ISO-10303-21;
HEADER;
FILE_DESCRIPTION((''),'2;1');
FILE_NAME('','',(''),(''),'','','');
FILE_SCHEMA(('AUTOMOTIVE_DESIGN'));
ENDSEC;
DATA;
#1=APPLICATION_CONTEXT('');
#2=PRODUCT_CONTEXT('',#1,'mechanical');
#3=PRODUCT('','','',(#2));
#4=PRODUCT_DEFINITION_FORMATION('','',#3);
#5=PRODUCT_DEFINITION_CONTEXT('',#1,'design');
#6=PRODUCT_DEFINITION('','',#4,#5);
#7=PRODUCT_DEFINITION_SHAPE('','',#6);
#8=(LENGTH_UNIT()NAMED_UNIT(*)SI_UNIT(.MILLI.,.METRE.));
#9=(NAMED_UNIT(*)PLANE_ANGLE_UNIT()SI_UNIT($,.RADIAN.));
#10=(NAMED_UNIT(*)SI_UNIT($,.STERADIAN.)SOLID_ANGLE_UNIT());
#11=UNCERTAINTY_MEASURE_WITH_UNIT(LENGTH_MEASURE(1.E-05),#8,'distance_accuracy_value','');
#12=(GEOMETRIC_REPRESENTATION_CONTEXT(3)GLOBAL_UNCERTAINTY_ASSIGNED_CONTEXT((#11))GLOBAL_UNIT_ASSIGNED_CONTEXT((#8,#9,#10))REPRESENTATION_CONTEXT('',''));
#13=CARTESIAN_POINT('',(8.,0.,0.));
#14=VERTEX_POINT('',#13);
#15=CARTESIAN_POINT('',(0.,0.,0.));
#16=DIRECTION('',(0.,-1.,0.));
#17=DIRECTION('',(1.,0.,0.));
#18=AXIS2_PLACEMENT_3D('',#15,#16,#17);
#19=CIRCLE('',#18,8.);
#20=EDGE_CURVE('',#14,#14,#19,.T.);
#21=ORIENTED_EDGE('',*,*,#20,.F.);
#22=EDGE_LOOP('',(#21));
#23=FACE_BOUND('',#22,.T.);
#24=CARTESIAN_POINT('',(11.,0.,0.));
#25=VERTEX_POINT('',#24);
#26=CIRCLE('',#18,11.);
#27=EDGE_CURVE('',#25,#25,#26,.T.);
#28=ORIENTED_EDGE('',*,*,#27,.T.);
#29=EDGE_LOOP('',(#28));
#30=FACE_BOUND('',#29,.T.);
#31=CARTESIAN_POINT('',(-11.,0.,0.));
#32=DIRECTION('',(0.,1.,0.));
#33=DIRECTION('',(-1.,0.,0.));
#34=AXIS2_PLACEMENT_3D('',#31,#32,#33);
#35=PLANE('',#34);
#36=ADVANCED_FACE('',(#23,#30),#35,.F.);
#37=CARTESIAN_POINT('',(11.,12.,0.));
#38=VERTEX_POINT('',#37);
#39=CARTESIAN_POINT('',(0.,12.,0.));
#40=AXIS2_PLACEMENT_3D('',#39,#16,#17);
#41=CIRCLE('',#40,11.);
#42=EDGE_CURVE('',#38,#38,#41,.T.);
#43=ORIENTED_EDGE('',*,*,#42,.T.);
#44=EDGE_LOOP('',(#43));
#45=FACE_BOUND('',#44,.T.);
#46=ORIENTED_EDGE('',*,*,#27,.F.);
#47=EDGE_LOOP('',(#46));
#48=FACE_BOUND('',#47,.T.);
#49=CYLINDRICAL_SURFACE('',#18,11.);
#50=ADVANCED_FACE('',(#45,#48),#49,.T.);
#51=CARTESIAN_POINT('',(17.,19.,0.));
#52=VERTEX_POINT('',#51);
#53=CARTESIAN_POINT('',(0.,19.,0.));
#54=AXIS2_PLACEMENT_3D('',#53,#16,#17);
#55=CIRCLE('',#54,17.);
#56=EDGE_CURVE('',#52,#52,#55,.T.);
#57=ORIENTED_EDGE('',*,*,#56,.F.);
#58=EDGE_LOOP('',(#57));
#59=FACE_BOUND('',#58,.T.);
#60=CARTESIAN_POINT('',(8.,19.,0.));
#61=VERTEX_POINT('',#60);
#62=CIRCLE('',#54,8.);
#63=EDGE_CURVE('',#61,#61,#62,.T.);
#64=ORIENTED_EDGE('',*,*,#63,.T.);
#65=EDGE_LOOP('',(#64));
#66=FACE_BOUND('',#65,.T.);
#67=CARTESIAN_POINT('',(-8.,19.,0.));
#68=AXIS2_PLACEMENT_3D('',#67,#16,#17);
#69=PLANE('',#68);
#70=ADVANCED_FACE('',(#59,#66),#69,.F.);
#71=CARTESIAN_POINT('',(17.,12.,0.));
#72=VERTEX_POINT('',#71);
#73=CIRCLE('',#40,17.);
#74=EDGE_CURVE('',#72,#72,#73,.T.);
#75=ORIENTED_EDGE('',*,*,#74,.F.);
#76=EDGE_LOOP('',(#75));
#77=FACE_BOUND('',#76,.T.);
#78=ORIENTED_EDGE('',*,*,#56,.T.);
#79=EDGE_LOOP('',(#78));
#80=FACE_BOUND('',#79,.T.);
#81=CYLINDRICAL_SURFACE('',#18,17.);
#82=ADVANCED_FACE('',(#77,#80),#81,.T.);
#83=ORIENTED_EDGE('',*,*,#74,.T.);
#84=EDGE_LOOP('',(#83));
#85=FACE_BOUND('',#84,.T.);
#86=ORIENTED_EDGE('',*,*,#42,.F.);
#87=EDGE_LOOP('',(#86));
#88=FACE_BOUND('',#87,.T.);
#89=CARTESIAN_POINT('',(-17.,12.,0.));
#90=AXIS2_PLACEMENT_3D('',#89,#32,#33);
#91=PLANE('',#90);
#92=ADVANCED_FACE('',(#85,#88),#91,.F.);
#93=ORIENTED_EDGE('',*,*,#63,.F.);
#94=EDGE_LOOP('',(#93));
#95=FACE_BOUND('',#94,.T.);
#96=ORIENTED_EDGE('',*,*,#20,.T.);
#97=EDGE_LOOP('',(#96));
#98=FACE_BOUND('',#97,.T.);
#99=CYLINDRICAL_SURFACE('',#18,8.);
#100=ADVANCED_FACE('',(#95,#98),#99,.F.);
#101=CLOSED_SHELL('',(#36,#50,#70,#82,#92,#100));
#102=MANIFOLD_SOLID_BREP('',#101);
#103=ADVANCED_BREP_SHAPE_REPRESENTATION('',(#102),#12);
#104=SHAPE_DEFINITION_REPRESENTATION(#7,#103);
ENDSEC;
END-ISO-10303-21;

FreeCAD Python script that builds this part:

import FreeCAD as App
import Part
import Sketcher
Q = App.Units.Quantity

doc = App.newDocument("Part")
params = doc.addObject("Spreadsheet::Sheet", "Params")
for row, (alias, value) in enumerate([
    ("sketch1_width", "9 mm"),
    ("sketch1_width2", "6 mm"),
    ("sketch1_height", "7 mm"),
    ("sketch1_height2", "12 mm"),
    ("revolution_angle", "360 deg"),
], start=1):
    params.set(f"A{row}", alias)
    params.set(f"B{row}", "=" + value)
    params.setAlias(f"B{row}", alias)

body = doc.addObject("PartDesign::Body", "Body")

sketch1 = body.newObject("Sketcher::SketchObject", "Sketch")
sketch1.AttachmentSupport = (doc.getObject("XY_Plane"), [""])
sketch1.MapMode = "FlatFace"
sketch1.addGeometry(Part.LineSegment(App.Vector(-8, 19, 0), App.Vector(-17, 19, 0)), False)
sketch1.addGeometry(Part.LineSegment(App.Vector(-17, 19, 0), App.Vector(-17, 12, 0)), False)
sketch1.addGeometry(Part.LineSegment(App.Vector(-17, 12, 0), App.Vector(-11, 12, 0)), False)
sketch1.addGeometry(Part.LineSegment(App.Vector(-11, 12, 0), App.Vector(-11, 0, 0)), False)
sketch1.addGeometry(Part.LineSegment(App.Vector(-11, 0, 0), App.Vector(-8, 0, 0)), False)
sketch1.addGeometry(Part.LineSegment(App.Vector(-8, 0, 0), App.Vector(-8, 19, 0)), False)
sketch1.addConstraint(Sketcher.Constraint("Coincident", 0, 2, 1, 1))
sketch1.addConstraint(Sketcher.Constraint("Coincident", 1, 2, 2, 1))
sketch1.addConstraint(Sketcher.Constraint("Coincident", 2, 2, 3, 1))
sketch1.addConstraint(Sketcher.Constraint("Coincident", 3, 2, 4, 1))
sketch1.addConstraint(Sketcher.Constraint("Coincident", 4, 2, 5, 1))
sketch1.addConstraint(Sketcher.Constraint("Coincident", 5, 2, 0, 1))
sketch1.addConstraint(Sketcher.Constraint("Horizontal", 0))
sketch1.addConstraint(Sketcher.Constraint("Vertical", 1))
sketch1.addConstraint(Sketcher.Constraint("Horizontal", 2))
sketch1.addConstraint(Sketcher.Constraint("Vertical", 3))
sketch1.addConstraint(Sketcher.Constraint("Horizontal", 4))
sketch1.addConstraint(Sketcher.Constraint("Vertical", 5))
sketch1.addConstraint(Sketcher.Constraint("PointOnObject", 3, 2, -1))
sketch1.addConstraint(Sketcher.Constraint("DistanceX", 0, 2, 0, 1, Q("9 mm")))
sketch1.addConstraint(Sketcher.Constraint("DistanceX", 2, 1, 2, 2, Q("6 mm")))
sketch1.addConstraint(Sketcher.Constraint("DistanceY", 1, 2, 1, 1, Q("7 mm")))
sketch1.addConstraint(Sketcher.Constraint("DistanceY", 3, 2, 3, 1, Q("12 mm")))
sketch1.addConstraint(Sketcher.Constraint("DistanceX", 0, 2, -1, 1, Q("17 mm")))
sketch1.setExpression("Constraints[13]", "Params.sketch1_width")
sketch1.setExpression("Constraints[14]", "Params.sketch1_width2")
sketch1.setExpression("Constraints[15]", "Params.sketch1_height")
sketch1.setExpression("Constraints[16]", "Params.sketch1_height2")
revolution = body.newObject("PartDesign::Revolution", "Revolution")
revolution.Profile = sketch1
revolution.ReferenceAxis = (sketch1, ["V_Axis"])
revolution.setExpression("Angle", "Params.revolution_angle")

doc.recompute()
